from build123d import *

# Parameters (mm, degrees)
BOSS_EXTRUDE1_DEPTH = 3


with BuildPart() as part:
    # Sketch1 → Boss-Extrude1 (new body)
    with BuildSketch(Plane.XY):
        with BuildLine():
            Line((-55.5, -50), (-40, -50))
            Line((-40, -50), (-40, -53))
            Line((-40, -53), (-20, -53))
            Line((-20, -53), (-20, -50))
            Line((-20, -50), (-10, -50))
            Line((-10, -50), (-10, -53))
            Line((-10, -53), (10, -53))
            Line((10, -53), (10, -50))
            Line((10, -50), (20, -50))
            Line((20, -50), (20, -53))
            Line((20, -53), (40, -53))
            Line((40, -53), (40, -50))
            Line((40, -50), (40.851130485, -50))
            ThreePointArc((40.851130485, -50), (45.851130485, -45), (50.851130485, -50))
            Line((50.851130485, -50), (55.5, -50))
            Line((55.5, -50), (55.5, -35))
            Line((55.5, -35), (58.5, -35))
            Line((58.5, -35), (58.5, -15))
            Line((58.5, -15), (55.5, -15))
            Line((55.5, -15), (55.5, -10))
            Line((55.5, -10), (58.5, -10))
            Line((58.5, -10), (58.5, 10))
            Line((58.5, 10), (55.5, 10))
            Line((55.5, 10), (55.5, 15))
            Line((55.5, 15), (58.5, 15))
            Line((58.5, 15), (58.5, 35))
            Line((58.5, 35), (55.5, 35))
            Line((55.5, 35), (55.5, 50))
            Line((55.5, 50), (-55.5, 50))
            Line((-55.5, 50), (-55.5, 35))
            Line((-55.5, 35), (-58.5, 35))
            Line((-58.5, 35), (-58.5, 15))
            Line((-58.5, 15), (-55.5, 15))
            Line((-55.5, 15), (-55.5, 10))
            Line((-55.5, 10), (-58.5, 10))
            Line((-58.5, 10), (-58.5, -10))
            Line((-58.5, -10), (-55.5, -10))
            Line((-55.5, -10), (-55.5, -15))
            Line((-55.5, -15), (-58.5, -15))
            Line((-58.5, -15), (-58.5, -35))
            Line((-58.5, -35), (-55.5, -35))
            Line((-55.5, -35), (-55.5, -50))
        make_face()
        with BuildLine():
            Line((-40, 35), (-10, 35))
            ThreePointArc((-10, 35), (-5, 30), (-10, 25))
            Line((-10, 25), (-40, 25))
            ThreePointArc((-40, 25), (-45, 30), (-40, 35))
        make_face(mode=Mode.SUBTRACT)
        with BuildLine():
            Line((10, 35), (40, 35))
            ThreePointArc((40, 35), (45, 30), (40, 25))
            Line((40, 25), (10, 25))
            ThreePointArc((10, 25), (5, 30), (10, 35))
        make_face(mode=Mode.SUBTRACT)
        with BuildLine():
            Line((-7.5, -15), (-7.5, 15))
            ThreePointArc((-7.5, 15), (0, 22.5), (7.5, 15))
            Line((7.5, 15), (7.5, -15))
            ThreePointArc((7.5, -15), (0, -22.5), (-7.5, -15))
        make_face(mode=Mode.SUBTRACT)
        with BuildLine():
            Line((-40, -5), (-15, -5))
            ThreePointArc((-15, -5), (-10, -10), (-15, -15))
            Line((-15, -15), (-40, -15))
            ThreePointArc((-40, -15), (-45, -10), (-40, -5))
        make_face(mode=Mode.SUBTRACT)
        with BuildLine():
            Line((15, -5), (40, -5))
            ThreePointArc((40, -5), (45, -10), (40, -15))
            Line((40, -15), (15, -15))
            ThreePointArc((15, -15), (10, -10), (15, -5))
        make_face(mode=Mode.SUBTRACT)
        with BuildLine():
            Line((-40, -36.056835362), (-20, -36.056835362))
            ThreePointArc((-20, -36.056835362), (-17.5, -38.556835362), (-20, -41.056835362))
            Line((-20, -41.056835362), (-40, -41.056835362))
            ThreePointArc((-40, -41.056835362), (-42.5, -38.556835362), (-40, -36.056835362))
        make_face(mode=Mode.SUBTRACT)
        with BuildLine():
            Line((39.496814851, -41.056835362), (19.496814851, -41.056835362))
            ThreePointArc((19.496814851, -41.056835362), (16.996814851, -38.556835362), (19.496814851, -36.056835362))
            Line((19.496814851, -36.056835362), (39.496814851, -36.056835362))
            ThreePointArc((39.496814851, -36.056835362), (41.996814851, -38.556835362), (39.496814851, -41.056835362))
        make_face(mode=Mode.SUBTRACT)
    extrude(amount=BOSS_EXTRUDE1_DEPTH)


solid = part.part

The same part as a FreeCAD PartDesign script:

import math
import FreeCAD as App
import Part
import Sketcher

V = App.Vector
Q = App.Units.Quantity

doc = App.newDocument("Part")
body = doc.addObject("PartDesign::Body", "Body")

# Sketch on XY plane
sketch1 = doc.addObject("Sketcher::SketchObject", "Sketch")
body.addObject(sketch1)
sketch1.AttachmentSupport = (doc.XY_Plane, [""])
sketch1.MapMode = "FlatFace"
sketch1.addGeometry(Part.LineSegment(V(-55.5, -50, 0), V(-40, -50, 0)), False)
sketch1.addGeometry(Part.LineSegment(V(-40, -50, 0), V(-40, -53, 0)), False)
sketch1.addGeometry(Part.LineSegment(V(-40, -53, 0), V(-20, -53, 0)), False)
sketch1.addGeometry(Part.LineSegment(V(-20, -53, 0), V(-20, -50, 0)), False)
sketch1.addGeometry(Part.LineSegment(V(-20, -50, 0), V(-10, -50, 0)), False)
sketch1.addGeometry(Part.LineSegment(V(-10, -50, 0), V(-10, -53, 0)), False)
sketch1.addGeometry(Part.LineSegment(V(-10, -53, 0), V(10, -53, 0)), False)
sketch1.addGeometry(Part.LineSegment(V(10, -53, 0), V(10, -50, 0)), False)
sketch1.addGeometry(Part.LineSegment(V(10, -50, 0), V(20, -50, 0)), False)
sketch1.addGeometry(Part.LineSegment(V(20, -50, 0), V(20, -53, 0)), False)
sketch1.addGeometry(Part.LineSegment(V(20, -53, 0), V(40, -53, 0)), False)
sketch1.addGeometry(Part.LineSegment(V(40, -53, 0), V(40, -50, 0)), False)
sketch1.addGeometry(Part.LineSegment(V(40, -50, 0), V(40.85113, -50, 0)), False)
sketch1.addGeometry(Part.ArcOfCircle(Part.Circle(V(45.85113, -50, 0), V(0, 0, 1), 5), math.radians(0), math.radians(180)), False)
sketch1.addGeometry(Part.LineSegment(V(50.85113, -50, 0), V(55.5, -50, 0)), False)
sketch1.addGeometry(Part.LineSegment(V(55.5, -50, 0), V(55.5, -35, 0)), False)
sketch1.addGeometry(Part.LineSegment(V(55.5, -35, 0), V(58.5, -35, 0)), False)
sketch1.addGeometry(Part.LineSegment(V(58.5, -35, 0), V(58.5, -15, 0)), False)
sketch1.addGeometry(Part.LineSegment(V(58.5, -15, 0), V(55.5, -15, 0)), False)
sketch1.addGeometry(Part.LineSegment(V(55.5, -15, 0), V(55.5, -10, 0)), False)
sketch1.addGeometry(Part.LineSegment(V(55.5, -10, 0), V(58.5, -10, 0)), False)
sketch1.addGeometry(Part.LineSegment(V(58.5, -10, 0), V(58.5, 10, 0)), False)
sketch1.addGeometry(Part.LineSegment(V(58.5, 10, 0), V(55.5, 10, 0)), False)
sketch1.addGeometry(Part.LineSegment(V(55.5, 10, 0), V(55.5, 15, 0)), False)
sketch1.addGeometry(Part.LineSegment(V(55.5, 15, 0), V(58.5, 15, 0)), False)
sketch1.addGeometry(Part.LineSegment(V(58.5, 15, 0), V(58.5, 35, 0)), False)
sketch1.addGeometry(Part.LineSegment(V(58.5, 35, 0), V(55.5, 35, 0)), False)
sketch1.addGeometry(Part.LineSegment(V(55.5, 35, 0), V(55.5, 50, 0)), False)
sketch1.addGeometry(Part.LineSegment(V(55.5, 50, 0), V(-55.5, 50, 0)), False)
sketch1.addGeometry(Part.LineSegment(V(-55.5, 50, 0), V(-55.5, 35, 0)), False)
sketch1.addGeometry(Part.LineSegment(V(-55.5, 35, 0), V(-58.5, 35, 0)), False)
sketch1.addGeometry(Part.LineSegment(V(-58.5, 35, 0), V(-58.5, 15, 0)), False)
sketch1.addGeometry(Part.LineSegment(V(-58.5, 15, 0), V(-55.5, 15, 0)), False)
sketch1.addGeometry(Part.LineSegment(V(-55.5, 15, 0), V(-55.5, 10, 0)), False)
sketch1.addGeometry(Part.LineSegment(V(-55.5, 10, 0), V(-58.5, 10, 0)), False)
sketch1.addGeometry(Part.LineSegment(V(-58.5, 10, 0), V(-58.5, -10, 0)), False)
sketch1.addGeometry(Part.LineSegment(V(-58.5, -10, 0), V(-55.5, -10, 0)), False)
sketch1.addGeometry(Part.LineSegment(V(-55.5, -10, 0), V(-55.5, -15, 0)), False)
sketch1.addGeometry(Part.LineSegment(V(-55.5, -15, 0), V(-58.5, -15, 0)), False)
sketch1.addGeometry(Part.LineSegment(V(-58.5, -15, 0), V(-58.5, -35, 0)), False)
sketch1.addGeometry(Part.LineSegment(V(-58.5, -35, 0), V(-55.5, -35, 0)), False)
sketch1.addGeometry(Part.LineSegment(V(-55.5, -35, 0), V(-55.5, -50, 0)), False)
sketch1.addGeometry(Part.ArcOfCircle(Part.Circle(V(-40, -38.556835, 0), V(0, 0, 1), 2.5), math.radians(90), math.radians(270)), False)
sketch1.addGeometry(Part.LineSegment(V(-40, -36.056835, 0), V(-20, -36.056835, 0)), False)
sketch1.addGeometry(Part.ArcOfCircle(Part.Circle(V(-20, -38.556835, 0), V(0, 0, 1), 2.5), math.radians(-90), math.radians(90)), False)
sketch1.addGeometry(Part.LineSegment(V(-20, -41.056835, 0), V(-40, -41.056835, 0)), False)
sketch1.addGeometry(Part.ArcOfCircle(Part.Circle(V(-40, -10, 0), V(0, 0, 1), 5), math.radians(90), math.radians(270)), False)
sketch1.addGeometry(Part.LineSegment(V(-40, -5, 0), V(-15, -5, 0)), False)
sketch1.addGeometry(Part.ArcOfCircle(Part.Circle(V(-15, -10, 0), V(0, 0, 1), 5), math.radians(-90), math.radians(90)), False)
sketch1.addGeometry(Part.LineSegment(V(-15, -15, 0), V(-40, -15, 0)), False)
sketch1.addGeometry(Part.ArcOfCircle(Part.Circle(V(39.496815, -38.556835, 0), V(0, 0, 1), 2.5), math.radians(-90), math.radians(90)), False)
sketch1.addGeometry(Part.LineSegment(V(39.496815, -41.056835, 0), V(19.496815, -41.056835, 0)), False)
sketch1.addGeometry(Part.ArcOfCircle(Part.Circle(V(19.496815, -38.556835, 0), V(0, 0, 1), 2.5), math.radians(90), math.radians(270)), False)
sketch1.addGeometry(Part.LineSegment(V(19.496815, -36.056835, 0), V(39.496815, -36.056835, 0)), False)
sketch1.addGeometry(Part.ArcOfCircle(Part.Circle(V(15, -10, 0), V(0, 0, 1), 5), math.radians(90), math.radians(270)), False)
sketch1.addGeometry(Part.LineSegment(V(15, -5, 0), V(40, -5, 0)), False)
sketch1.addGeometry(Part.ArcOfCircle(Part.Circle(V(40, -10, 0), V(0, 0, 1), 5), math.radians(-90), math.radians(90)), False)
sketch1.addGeometry(Part.LineSegment(V(40, -15, 0), V(15, -15, 0)), False)
sketch1.addGeometry(Part.ArcOfCircle(Part.Circle(V(-40, 30, 0), V(0, 0, 1), 5), math.radians(90), math.radians(270)), False)
sketch1.addGeometry(Part.LineSegment(V(-40, 35, 0), V(-10, 35, 0)), False)
sketch1.addGeometry(Part.ArcOfCircle(Part.Circle(V(-10, 30, 0), V(0, 0, 1), 5), math.radians(-90), math.radians(90)), False)
sketch1.addGeometry(Part.LineSegment(V(-10, 25, 0), V(-40, 25, 0)), False)
sketch1.addGeometry(Part.ArcOfCircle(Part.Circle(V(0, -15, 0), V(0, 0, 1), 7.5), math.radians(180), math.radians(360)), False)
sketch1.addGeometry(Part.LineSegment(V(-7.5, -15, 0), V(-7.5, 15, 0)), False)
sketch1.addGeometry(Part.ArcOfCircle(Part.Circle(V(0, 15, 0), V(0, 0, 1), 7.5), math.radians(0), math.radians(180)), False)
sketch1.addGeometry(Part.LineSegment(V(7.5, 15, 0), V(7.5, -15, 0)), False)
sketch1.addGeometry(Part.ArcOfCircle(Part.Circle(V(10, 30, 0), V(0, 0, 1), 5), math.radians(90), math.radians(270)), False)
sketch1.addGeometry(Part.LineSegment(V(10, 35, 0), V(40, 35, 0)), False)
sketch1.addGeometry(Part.ArcOfCircle(Part.Circle(V(40, 30, 0), V(0, 0, 1), 5), math.radians(-90), math.radians(90)), False)
sketch1.addGeometry(Part.LineSegment(V(40, 25, 0), V(10, 25, 0)), False)
sketch1.addConstraint(Sketcher.Constraint("Coincident", 0, 2, 1, 1))
sketch1.addConstraint(Sketcher.Constraint("Coincident", 1, 2, 2, 1))
sketch1.addConstraint(Sketcher.Constraint("Coincident", 2, 2, 3, 1))
sketch1.addConstraint(Sketcher.Constraint("Coincident", 3, 2, 4, 1))
sketch1.addConstraint(Sketcher.Constraint("Coincident", 4, 2, 5, 1))
sketch1.addConstraint(Sketcher.Constraint("Coincident", 5, 2, 6, 1))
sketch1.addConstraint(Sketcher.Constraint("Coincident", 6, 2, 7, 1))
sketch1.addConstraint(Sketcher.Constraint("Coincident", 7, 2, 8, 1))
sketch1.addConstraint(Sketcher.Constraint("Coincident", 8, 2, 9, 1))
sketch1.addConstraint(Sketcher.Constraint("Coincident", 9, 2, 10, 1))
sketch1.addConstraint(Sketcher.Constraint("Coincident", 10, 2, 11, 1))
sketch1.addConstraint(Sketcher.Constraint("Coincident", 11, 2, 12, 1))
sketch1.addConstraint(Sketcher.Constraint("Coincident", 12, 2, 13, 2))
sketch1.addConstraint(Sketcher.Constraint("Coincident", 13, 1, 14, 1))
sketch1.addConstraint(Sketcher.Constraint("Coincident", 14, 2, 15, 1))
sketch1.addConstraint(Sketcher.Constraint("Coincident", 15, 2, 16, 1))
sketch1.addConstraint(Sketcher.Constraint("Coincident", 16, 2, 17, 1))
sketch1.addConstraint(Sketcher.Constraint("Coincident", 17, 2, 18, 1))
sketch1.addConstraint(Sketcher.Constraint("Coincident", 18, 2, 19, 1))
sketch1.addConstraint(Sketcher.Constraint("Coincident", 19, 2, 20, 1))
sketch1.addConstraint(Sketcher.Constraint("Coincident", 20, 2, 21, 1))
sketch1.addConstraint(Sketcher.Constraint("Coincident", 21, 2, 22, 1))
sketch1.addConstraint(Sketcher.Constraint("Coincident", 22, 2, 23, 1))
sketch1.addConstraint(Sketcher.Constraint("Coincident", 23, 2, 24, 1))
sketch1.addConstraint(Sketcher.Constraint("Coincident", 24, 2, 25, 1))
sketch1.addConstraint(Sketcher.Constraint("Coincident", 25, 2, 26, 1))
sketch1.addConstraint(Sketcher.Constraint("Coincident", 26, 2, 27, 1))
sketch1.addConstraint(Sketcher.Constraint("Coincident", 27, 2, 28, 1))
sketch1.addConstraint(Sketcher.Constraint("Coincident", 28, 2, 29, 1))
sketch1.addConstraint(Sketcher.Constraint("Coincident", 29, 2, 30, 1))
sketch1.addConstraint(Sketcher.Constraint("Coincident", 30, 2, 31, 1))
sketch1.addConstraint(Sketcher.Constraint("Coincident", 31, 2, 32, 1))
sketch1.addConstraint(Sketcher.Constraint("Coincident", 32, 2, 33, 1))
sketch1.addConstraint(Sketcher.Constraint("Coincident", 33, 2, 34, 1))
sketch1.addConstraint(Sketcher.Constraint("Coincident", 34, 2, 35, 1))
sketch1.addConstraint(Sketcher.Constraint("Coincident", 35, 2, 36, 1))
sketch1.addConstraint(Sketcher.Constraint("Coincident", 36, 2, 37, 1))
sketch1.addConstraint(Sketcher.Constraint("Coincident", 37, 2, 38, 1))
sketch1.addConstraint(Sketcher.Constraint("Coincident", 38, 2, 39, 1))
sketch1.addConstraint(Sketcher.Constraint("Coincident", 39, 2, 40, 1))
sketch1.addConstraint(Sketcher.Constraint("Coincident", 40, 2, 41, 1))
sketch1.addConstraint(Sketcher.Constraint("Coincident", 41, 2, 0, 1))
sketch1.addConstraint(Sketcher.Constraint("Tangent", 42, 1, 43, 1))
sketch1.addConstraint(Sketcher.Constraint("Tangent", 43, 2, 44, 2))
sketch1.addConstraint(Sketcher.Constraint("Tangent", 44, 1, 45, 1))
sketch1.addConstraint(Sketcher.Constraint("Tangent", 45, 2, 42, 2))
sketch1.addConstraint(Sketcher.Constraint("Tangent", 46, 1, 47, 1))
sketch1.addConstraint(Sketcher.Constraint("Tangent", 47, 2, 48, 2))
sketch1.addConstraint(Sketcher.Constraint("Tangent", 48, 1, 49, 1))
sketch1.addConstraint(Sketcher.Constraint("Tangent", 49, 2, 46, 2))
sketch1.addConstraint(Sketcher.Constraint("Tangent", 50, 1, 51, 1))
sketch1.addConstraint(Sketcher.Constraint("Tangent", 51, 2, 52, 2))
sketch1.addConstraint(Sketcher.Constraint("Tangent", 52, 1, 53, 1))
sketch1.addConstraint(Sketcher.Constraint("Tangent", 53, 2, 50, 2))
sketch1.addConstraint(Sketcher.Constraint("Tangent", 54, 1, 55, 1))
sketch1.addConstraint(Sketcher.Constraint("Tangent", 55, 2, 56, 2))
sketch1.addConstraint(Sketcher.Constraint("Tangent", 56, 1, 57, 1))
sketch1.addConstraint(Sketcher.Constraint("Tangent", 57, 2, 54, 2))
sketch1.addConstraint(Sketcher.Constraint("Tangent", 58, 1, 59, 1))
sketch1.addConstraint(Sketcher.Constraint("Tangent", 59, 2, 60, 2))
sketch1.addConstraint(Sketcher.Constraint("Tangent", 60, 1, 61, 1))
sketch1.addConstraint(Sketcher.Constraint("Tangent", 61, 2, 58, 2))
sketch1.addConstraint(Sketcher.Constraint("Tangent", 62, 1, 63, 1))
sketch1.addConstraint(Sketcher.Constraint("Tangent", 63, 2, 64, 2))
sketch1.addConstraint(Sketcher.Constraint("Tangent", 64, 1, 65, 1))
sketch1.addConstraint(Sketcher.Constraint("Tangent", 65, 2, 62, 2))
sketch1.addConstraint(Sketcher.Constraint("Tangent", 66, 1, 67, 1))
sketch1.addConstraint(Sketcher.Constraint("Tangent", 67, 2, 68, 2))
sketch1.addConstraint(Sketcher.Constraint("Tangent", 68, 1, 69, 1))
sketch1.addConstraint(Sketcher.Constraint("Tangent", 69, 2, 66, 2))
sketch1.addConstraint(Sketcher.Constraint("Horizontal", 0))
sketch1.addConstraint(Sketcher.Constraint("Vertical", 1))
sketch1.addConstraint(Sketcher.Constraint("Horizontal", 2))
sketch1.addConstraint(Sketcher.Constraint("Vertical", 3))
sketch1.addConstraint(Sketcher.Constraint("Horizontal", 4))
sketch1.addConstraint(Sketcher.Constraint("Vertical", 5))
sketch1.addConstraint(Sketcher.Constraint("Horizontal", 6))
sketch1.addConstraint(Sketcher.Constraint("Vertical", 7))
sketch1.addConstraint(Sketcher.Constraint("Horizontal", 8))
sketch1.addConstraint(Sketcher.Constraint("Vertical", 9))
sketch1.addConstraint(Sketcher.Constraint("Horizontal", 10))
sketch1.addConstraint(Sketcher.Constraint("Vertical", 11))
sketch1.addConstraint(Sketcher.Constraint("Horizontal", 12))
sketch1.addConstraint(Sketcher.Constraint("Horizontal", 14))
sketch1.addConstraint(Sketcher.Constraint("Vertical", 15))
sketch1.addConstraint(Sketcher.Constraint("Horizontal", 16))
sketch1.addConstraint(Sketcher.Constraint("Vertical", 17))
sketch1.addConstraint(Sketcher.Constraint("Horizontal", 18))
sketch1.addConstraint(Sketcher.Constraint("Vertical", 19))
sketch1.addConstraint(Sketcher.Constraint("Horizontal", 20))
sketch1.addConstraint(Sketcher.Constraint("Vertical", 21))
sketch1.addConstraint(Sketcher.Constraint("Horizontal", 22))
sketch1.addConstraint(Sketcher.Constraint("Vertical", 23))
sketch1.addConstraint(Sketcher.Constraint("Horizontal", 24))
sketch1.addConstraint(Sketcher.Constraint("Vertical", 25))
sketch1.addConstraint(Sketcher.Constraint("Horizontal", 26))
sketch1.addConstraint(Sketcher.Constraint("Vertical", 27))
sketch1.addConstraint(Sketcher.Constraint("Horizontal", 28))
sketch1.addConstraint(Sketcher.Constraint("Vertical", 29))
sketch1.addConstraint(Sketcher.Constraint("Horizontal", 30))
sketch1.addConstraint(Sketcher.Constraint("Vertical", 31))
sketch1.addConstraint(Sketcher.Constraint("Horizontal", 32))
sketch1.addConstraint(Sketcher.Constraint("Vertical", 33))
sketch1.addConstraint(Sketcher.Constraint("Horizontal", 34))
sketch1.addConstraint(Sketcher.Constraint("Vertical", 35))
sketch1.addConstraint(Sketcher.Constraint("Horizontal", 36))
sketch1.addConstraint(Sketcher.Constraint("Vertical", 37))
sketch1.addConstraint(Sketcher.Constraint("Horizontal", 38))
sketch1.addConstraint(Sketcher.Constraint("Vertical", 39))
sketch1.addConstraint(Sketcher.Constraint("Horizontal", 40))
sketch1.addConstraint(Sketcher.Constraint("Vertical", 41))
sketch1.addConstraint(Sketcher.Constraint("Horizontal", 43))
sketch1.addConstraint(Sketcher.Constraint("Horizontal", 45))
sketch1.addConstraint(Sketcher.Constraint("Horizontal", 47))
sketch1.addConstraint(Sketcher.Constraint("Horizontal", 49))
sketch1.addConstraint(Sketcher.Constraint("Horizontal", 51))
sketch1.addConstraint(Sketcher.Constraint("Horizontal", 53))
sketch1.addConstraint(Sketcher.Constraint("Horizontal", 55))
sketch1.addConstraint(Sketcher.Constraint("Horizontal", 57))
sketch1.addConstraint(Sketcher.Constraint("Horizontal", 59))
sketch1.addConstraint(Sketcher.Constraint("Horizontal", 61))
sketch1.addConstraint(Sketcher.Constraint("Vertical", 63))
sketch1.addConstraint(Sketcher.Constraint("Vertical", 65))
sketch1.addConstraint(Sketcher.Constraint("Horizontal", 67))
sketch1.addConstraint(Sketcher.Constraint("Horizontal", 69))
sketch1.addConstraint(Sketcher.Constraint("Equal", 13, 46))
sketch1.addConstraint(Sketcher.Constraint("Equal", 44, 50))
sketch1.addConstraint(Sketcher.Constraint("Equal", 48, 54))
sketch1.addConstraint(Sketcher.Constraint("Equal", 56, 58))
sketch1.addConstraint(Sketcher.Constraint("Equal", 60, 66))
sketch1.addConstraint(Sketcher.Constraint("Symmetric", 62, 3, 64, 3, -1, 1))
sketch1.addConstraint(Sketcher.Constraint("Symmetric", 14, 2, 28, 2, -1, 1))
sketch1.addConstraint(Sketcher.Constraint("Symmetric", 16, 2, 30, 2, -1, 1))
sketch1.addConstraint(Sketcher.Constraint("Symmetric", 18, 2, 32, 2, -1, 1))
sketch1.addConstraint(Sketcher.Constraint("Symmetric", 20, 2, 34, 2, -1, 1))
sketch1.addConstraint(Sketcher.Constraint("Symmetric", 22, 2, 36, 2, -1, 1))
sketch1.addConstraint(Sketcher.Constraint("Symmetric", 24, 2, 38, 2, -1, 1))
sketch1.addConstraint(Sketcher.Constraint("Symmetric", 26, 2, 40, 2, -1, 1))
sketch1.addConstraint(Sketcher.Constraint("Symmetric", 48, 3, 54, 3, -2))
sketch1.addConstraint(Sketcher.Constraint("Symmetric", 60, 3, 66, 3, -2))
sketch1.addConstraint(Sketcher.Constraint("Symmetric", 4, 2, 7, 2, -2))
sketch1.addConstraint(Sketcher.Constraint("Symmetric", 2, 2, 9, 2, -2))
sketch1.addConstraint(Sketcher.Constraint("Symmetric", 0, 2, 11, 2, -2))
sketch1.addConstraint(Sketcher.Constraint("Symmetric", 26, 2, 29, 2, -2))
sketch1.addConstraint(Sketcher.Constraint("Symmetric", 24, 2, 31, 2, -2))
sketch1.addConstraint(Sketcher.Constraint("Symmetric", 22, 2, 33, 2, -2))
sketch1.addConstraint(Sketcher.Constraint("Horizontal", 44, 3, 50, 3))
sketch1.addConstraint(Sketcher.Constraint("Horizontal", 13, 3, 0, 2))
sketch1.addConstraint(Sketcher.Constraint("Horizontal", 0, 2, 3, 2))
sketch1.addConstraint(Sketcher.Constraint("Horizontal", 2, 2, 5, 2))
sketch1.addConstraint(Sketcher.Constraint("Horizontal", 12, 2, 13, 1))
sketch1.addConstraint(Sketcher.Constraint("Horizontal", 62, 3, 17, 2))
sketch1.addConstraint(Sketcher.Constraint("Horizontal", 56, 3, 19, 2))
sketch1.addConstraint(Sketcher.Constraint("Horizontal", 38, 2, 48, 1))
sketch1.addConstraint(Sketcher.Constraint("Horizontal", 30, 2, 58, 1))
sketch1.addConstraint(Sketcher.Constraint("Vertical", 42, 3, 46, 3))
sketch1.addConstraint(Sketcher.Constraint("Vertical", 46, 3, 58, 3))
sketch1.addConstraint(Sketcher.Constraint("Vertical", 56, 3, 68, 3))
sketch1.addConstraint(Sketcher.Constraint("Vertical", 58, 3, 0, 2))
sketch1.addConstraint(Sketcher.Constraint("Vertical", 44, 3, 2, 2))
sketch1.addConstraint(Sketcher.Constraint("Vertical", 60, 3, 4, 2))
sketch1.addConstraint(Sketcher.Constraint("Vertical", 68, 3, 10, 2))
sketch1.addConstraint(Sketcher.Constraint("Vertical", 15, 2, 18, 2))
sketch1.addConstraint(Sketcher.Constraint("Vertical", 17, 2, 20, 2))
sketch1.addConstraint(Sketcher.Constraint("Equal", 2, 6))
sketch1.addConstraint(Sketcher.Constraint("Equal", 45, 51))
sketch1.addConstraint(Sketcher.Constraint("Equal", 40, 1))
sketch1.addConstraint(Sketcher.Constraint("Equal", 53, 17))
sketch1.addConstraint(Sketcher.Constraint("Equal", 17, 21))
sketch1.addConstraint(Sketcher.Constraint("Equal", 69, 63))
sketch1.addConstraint(Sketcher.Constraint("Radius", 13, Q("5 mm")))
sketch1.addConstraint(Sketcher.Constraint("Radius", 42, Q("2.5 mm")))
sketch1.addConstraint(Sketcher.Constraint("Radius", 62, Q("7.5 mm")))
sketch1.addConstraint(Sketcher.Constraint("DistanceX", 2, 1, 2, 2, Q("20 mm")))
sketch1.addConstraint(Sketcher.Constraint("DistanceX", 16, 1, 16, 2, Q("3 mm")))
sketch1.addConstraint(Sketcher.Constraint("DistanceX", 28, 2, 28, 1, Q("111 mm")))
sketch1.addConstraint(Sketcher.Constraint("DistanceX", 47, 1, 47, 2, Q("25 mm")))
sketch1.addConstraint(Sketcher.Constraint("DistanceY", 15, 1, 15, 2, Q("15 mm")))
sketch1.addConstraint(Sketcher.Constraint("DistanceX", 12, 1, 12, 2, Q("0.85113 mm")))
sketch1.addConstraint(Sketcher.Constraint("DistanceY", 42, 3, -1, 1, Q("38.556835 mm")))
sketch1.addConstraint(Sketcher.Constraint("DistanceX", -1, 1, 50, 3, Q("39.496815 mm")))
pad1 = doc.addObject("PartDesign::Pad", "Pad")
body.addObject(pad1)
pad1.Profile = sketch1
pad1.Length = 3

doc.recompute()
